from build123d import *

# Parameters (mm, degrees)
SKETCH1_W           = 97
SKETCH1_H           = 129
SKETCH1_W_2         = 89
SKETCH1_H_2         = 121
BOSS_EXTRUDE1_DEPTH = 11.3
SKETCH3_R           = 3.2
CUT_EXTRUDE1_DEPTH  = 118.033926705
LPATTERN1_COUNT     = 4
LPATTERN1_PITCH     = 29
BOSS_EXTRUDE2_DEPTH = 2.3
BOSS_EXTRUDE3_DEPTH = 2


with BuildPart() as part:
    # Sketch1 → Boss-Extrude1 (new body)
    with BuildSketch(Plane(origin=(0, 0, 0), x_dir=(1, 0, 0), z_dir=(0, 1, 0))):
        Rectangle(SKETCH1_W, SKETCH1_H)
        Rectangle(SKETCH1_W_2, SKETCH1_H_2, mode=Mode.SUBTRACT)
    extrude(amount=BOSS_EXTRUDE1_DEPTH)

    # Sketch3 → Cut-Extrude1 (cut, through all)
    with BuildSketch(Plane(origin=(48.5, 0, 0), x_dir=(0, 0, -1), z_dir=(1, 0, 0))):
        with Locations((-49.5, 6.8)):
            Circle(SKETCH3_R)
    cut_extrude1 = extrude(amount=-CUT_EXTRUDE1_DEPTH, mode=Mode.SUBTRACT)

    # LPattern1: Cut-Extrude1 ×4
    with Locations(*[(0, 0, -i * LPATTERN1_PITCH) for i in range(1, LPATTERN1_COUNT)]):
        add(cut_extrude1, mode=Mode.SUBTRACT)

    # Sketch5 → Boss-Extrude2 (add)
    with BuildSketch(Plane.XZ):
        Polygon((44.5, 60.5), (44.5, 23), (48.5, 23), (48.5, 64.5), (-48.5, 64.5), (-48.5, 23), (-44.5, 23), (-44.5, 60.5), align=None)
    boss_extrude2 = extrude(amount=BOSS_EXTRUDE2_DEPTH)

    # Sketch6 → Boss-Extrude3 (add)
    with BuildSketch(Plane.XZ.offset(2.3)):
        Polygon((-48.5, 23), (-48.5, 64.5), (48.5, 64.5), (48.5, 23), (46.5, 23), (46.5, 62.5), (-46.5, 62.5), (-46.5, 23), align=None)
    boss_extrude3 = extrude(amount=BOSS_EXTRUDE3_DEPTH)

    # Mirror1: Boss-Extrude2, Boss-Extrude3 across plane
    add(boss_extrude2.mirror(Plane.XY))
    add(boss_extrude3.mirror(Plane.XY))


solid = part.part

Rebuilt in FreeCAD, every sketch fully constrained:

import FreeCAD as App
import Part
import Sketcher

V = App.Vector
Q = App.Units.Quantity

doc = App.newDocument("Part")
params = doc.addObject("Spreadsheet::Sheet", "Params")
for row, (alias, value) in enumerate([
    ("sketch1_width", "97 mm"),
    ("sketch1_width2", "89 mm"),
    ("sketch1_height", "129 mm"),
    ("sketch1_height2", "121 mm"),
    ("pad1_length", "11.3 mm"),
    ("sketch2_diameter", "6.4 mm"),
    ("linearpattern_pitch", "29 mm"),
    ("sketch3_width", "4 mm"),
    ("sketch3_width2", "97 mm"),
    ("sketch3_height", "37.5 mm"),
    ("sketch3_height2", "41.5 mm"),
    ("pad2_length", "2.3 mm"),
    ("sketch4_width", "2 mm"),
    ("sketch4_width2", "93 mm"),
    ("sketch4_height", "41.5 mm"),
    ("sketch4_height2", "39.5 mm"),
    ("pad3_length", "2 mm"),
], start=1):
    params.set(f"A{row}", alias)
    params.set(f"B{row}", "=" + value)
    params.setAlias(f"B{row}", alias)

body = doc.addObject("PartDesign::Body", "Body")

sketch1 = doc.addObject("Sketcher::SketchObject", "Sketch")
body.addObject(sketch1)
sketch1.AttachmentSupport = (doc.XZ_Plane, [""])
sketch1.MapMode = "FlatFace"
sketch1.addGeometry(Part.LineSegment(V(-48, -64, 0), V(-48, 64, 0)), False)
sketch1.addGeometry(Part.LineSegment(V(-48, 64, 0), V(48, 64, 0)), False)
sketch1.addGeometry(Part.LineSegment(V(48, 64, 0), V(48, -64, 0)), False)
sketch1.addGeometry(Part.LineSegment(V(48, -64, 0), V(-48, -64, 0)), False)
sketch1.addGeometry(Part.LineSegment(V(44, 60, 0), V(-44, 60, 0)), False)
sketch1.addGeometry(Part.LineSegment(V(-44, 60, 0), V(-44, -60, 0)), False)
sketch1.addGeometry(Part.LineSegment(V(-44, -60, 0), V(44, -60, 0)), False)
sketch1.addGeometry(Part.LineSegment(V(44, -60, 0), V(44, 60, 0)), False)
sketch1.addConstraint(Sketcher.Constraint("Coincident", 0, 2, 1, 1))
sketch1.addConstraint(Sketcher.Constraint("Coincident", 1, 2, 2, 1))
sketch1.addConstraint(Sketcher.Constraint("Coincident", 2, 2, 3, 1))
sketch1.addConstraint(Sketcher.Constraint("Coincident", 3, 2, 0, 1))
sketch1.addConstraint(Sketcher.Constraint("Coincident", 4, 2, 5, 1))
sketch1.addConstraint(Sketcher.Constraint("Coincident", 5, 2, 6, 1))
sketch1.addConstraint(Sketcher.Constraint("Coincident", 6, 2, 7, 1))
sketch1.addConstraint(Sketcher.Constraint("Coincident", 7, 2, 4, 1))
sketch1.addConstraint(Sketcher.Constraint("Vertical", 0))
sketch1.addConstraint(Sketcher.Constraint("Horizontal", 1))
sketch1.addConstraint(Sketcher.Constraint("Vertical", 2))
sketch1.addConstraint(Sketcher.Constraint("Horizontal", 3))
sketch1.addConstraint(Sketcher.Constraint("Horizontal", 4))
sketch1.addConstraint(Sketcher.Constraint("Vertical", 5))
sketch1.addConstraint(Sketcher.Constraint("Horizontal", 6))
sketch1.addConstraint(Sketcher.Constraint("Vertical", 7))
sketch1.addConstraint(Sketcher.Constraint("Symmetric", 0, 2, 2, 2, -1, 1))
sketch1.addConstraint(Sketcher.Constraint("Symmetric", 4, 2, 6, 2, -1, 1))
sketch1.addConstraint(Sketcher.Constraint("DistanceX", 1, 1, 1, 2, Q("97 mm")))
sketch1.addConstraint(Sketcher.Constraint("DistanceX", 4, 2, 4, 1, Q("89 mm")))
sketch1.addConstraint(Sketcher.Constraint("DistanceY", 0, 1, 0, 2, Q("129 mm")))
sketch1.addConstraint(Sketcher.Constraint("DistanceY", 5, 2, 5, 1, Q("121 mm")))
sketch1.setExpression("Constraints[18]", "Params.sketch1_width")
sketch1.setExpression("Constraints[19]", "Params.sketch1_width2")
sketch1.setExpression("Constraints[20]", "Params.sketch1_height")
sketch1.setExpression("Constraints[21]", "Params.sketch1_height2")
pad1 = doc.addObject("PartDesign::Pad", "Pad")
body.addObject(pad1)
pad1.Profile = sketch1
pad1.setExpression("Length", "Params.pad1_length")
pad1.Reversed = True

sketch2 = doc.addObject("Sketcher::SketchObject", "Sketch001")
body.addObject(sketch2)
sketch2.AttachmentSupport = (doc.YZ_Plane, [""])
sketch2.MapMode = "FlatFace"
sketch2.AttachmentOffset = App.Placement(V(0, 0, 48.5), App.Rotation())
sketch2.addGeometry(Part.Circle(V(6.8, 49.5, 0), V(0, 0, 1), 3.2), False)
sketch2.addConstraint(Sketcher.Constraint("Diameter", 0, Q("6.4 mm")))
sketch2.addConstraint(Sketcher.Constraint("DistanceX", -1, 1, 0, 3, Q("6.8 mm")))
sketch2.addConstraint(Sketcher.Constraint("DistanceY", -1, 1, 0, 3, Q("49.5 mm")))
sketch2.setExpression("Constraints[0]", "Params.sketch2_diameter")
pocket1 = doc.addObject("PartDesign::Pocket", "Pocket")
body.addObject(pocket1)
pocket1.Profile = sketch2
pocket1.Type = "ThroughAll"
doc.recompute()

linearpattern = doc.addObject("PartDesign::LinearPattern", "LinearPattern")
body.addObject(linearpattern)
linearpattern.Originals = [pocket1]
linearpattern.Direction = (doc.Z_Axis, [""])
linearpattern.Mode = "offset"
linearpattern.setExpression("Offset", "Params.linearpattern_pitch")
linearpattern.Occurrences = 4
linearpattern.Reversed = True
body.Tip = linearpattern

sketch3 = doc.addObject("Sketcher::SketchObject", "Sketch002")
body.addObject(sketch3)
sketch3.AttachmentSupport = (doc.XZ_Plane, [""])
sketch3.MapMode = "FlatFace"
sketch3.addGeometry(Part.LineSegment(V(44.5, 60.5, 0), V(44.5, 23, 0)), False)
sketch3.addGeometry(Part.LineSegment(V(44.5, 23, 0), V(48.5, 23, 0)), False)
sketch3.addGeometry(Part.LineSegment(V(48.5, 23, 0), V(48.5, 64.5, 0)), False)
sketch3.addGeometry(Part.LineSegment(V(48.5, 64.5, 0), V(-48.5, 64.5, 0)), False)
sketch3.addGeometry(Part.LineSegment(V(-48.5, 64.5, 0), V(-48.5, 23, 0)), False)
sketch3.addGeometry(Part.LineSegment(V(-48.5, 23, 0), V(-44.5, 23, 0)), False)
sketch3.addGeometry(Part.LineSegment(V(-44.5, 23, 0), V(-44.5, 60.5, 0)), False)
sketch3.addGeometry(Part.LineSegment(V(-44.5, 60.5, 0), V(44.5, 60.5, 0)), False)
sketch3.addConstraint(Sketcher.Constraint("Coincident", 0, 2, 1, 1))
sketch3.addConstraint(Sketcher.Constraint("Coincident", 1, 2, 2, 1))
sketch3.addConstraint(Sketcher.Constraint("Coincident", 2, 2, 3, 1))
sketch3.addConstraint(Sketcher.Constraint("Coincident", 3, 2, 4, 1))
sketch3.addConstraint(Sketcher.Constraint("Coincident", 4, 2, 5, 1))
sketch3.addConstraint(Sketcher.Constraint("Coincident", 5, 2, 6, 1))
sketch3.addConstraint(Sketcher.Constraint("Coincident", 6, 2, 7, 1))
sketch3.addConstraint(Sketcher.Constraint("Coincident", 7, 2, 0, 1))
sketch3.addConstraint(Sketcher.Constraint("Vertical", 0))
sketch3.addConstraint(Sketcher.Constraint("Horizontal", 1))
sketch3.addConstraint(Sketcher.Constraint("Vertical", 2))
sketch3.addConstraint(Sketcher.Constraint("Horizontal", 3))
sketch3.addConstraint(Sketcher.Constraint("Vertical", 4))
sketch3.addConstraint(Sketcher.Constraint("Horizontal", 5))
sketch3.addConstraint(Sketcher.Constraint("Vertical", 6))
sketch3.addConstraint(Sketcher.Constraint("Horizontal", 7))
sketch3.addConstraint(Sketcher.Constraint("Symmetric", 1, 2, 4, 2, -2))
sketch3.addConstraint(Sketcher.Constraint("Equal", 1, 5))
sketch3.addConstraint(Sketcher.Constraint("DistanceX", 1, 1, 1, 2, Q("4 mm")))
sketch3.addConstraint(Sketcher.Constraint("DistanceX", 3, 2, 3, 1, Q("97 mm")))
sketch3.addConstraint(Sketcher.Constraint("DistanceY", 0, 2, 0, 1, Q("37.5 mm")))
sketch3.addConstraint(Sketcher.Constraint("DistanceY", 2, 1, 2, 2, Q("41.5 mm")))
sketch3.addConstraint(Sketcher.Constraint("DistanceY", -1, 1, 0, 2, Q("23 mm")))
sketch3.setExpression("Constraints[18]", "Params.sketch3_width")
sketch3.setExpression("Constraints[19]", "Params.sketch3_width2")
sketch3.setExpression("Constraints[20]", "Params.sketch3_height")
sketch3.setExpression("Constraints[21]", "Params.sketch3_height2")
pad2 = doc.addObject("PartDesign::Pad", "Pad001")
body.addObject(pad2)
pad2.Profile = sketch3
pad2.setExpression("Length", "Params.pad2_length")

sketch4 = doc.addObject("Sketcher::SketchObject", "Sketch003")
body.addObject(sketch4)
sketch4.AttachmentSupport = (doc.XZ_Plane, [""])
sketch4.MapMode = "FlatFace"
sketch4.AttachmentOffset = App.Placement(V(0, 0, 2.3), App.Rotation())
sketch4.addGeometry(Part.LineSegment(V(-48.5, 64.5, 0), V(-48.5, 23, 0)), False)
sketch4.addGeometry(Part.LineSegment(V(-48.5, 23, 0), V(-46.5, 23, 0)), False)
sketch4.addGeometry(Part.LineSegment(V(-46.5, 23, 0), V(-46.5, 62.5, 0)), False)
sketch4.addGeometry(Part.LineSegment(V(-46.5, 62.5, 0), V(46.5, 62.5, 0)), False)
sketch4.addGeometry(Part.LineSegment(V(46.5, 62.5, 0), V(46.5, 23, 0)), False)
sketch4.addGeometry(Part.LineSegment(V(46.5, 23, 0), V(48.5, 23, 0)), False)
sketch4.addGeometry(Part.LineSegment(V(48.5, 23, 0), V(48.5, 64.5, 0)), False)
sketch4.addGeometry(Part.LineSegment(V(48.5, 64.5, 0), V(-48.5, 64.5, 0)), False)
sketch4.addConstraint(Sketcher.Constraint("Coincident", 0, 2, 1, 1))
sketch4.addConstraint(Sketcher.Constraint("Coincident", 1, 2, 2, 1))
sketch4.addConstraint(Sketcher.Constraint("Coincident", 2, 2, 3, 1))
sketch4.addConstraint(Sketcher.Constraint("Coincident", 3, 2, 4, 1))
sketch4.addConstraint(Sketcher.Constraint("Coincident", 4, 2, 5, 1))
sketch4.addConstraint(Sketcher.Constraint("Coincident", 5, 2, 6, 1))
sketch4.addConstraint(Sketcher.Constraint("Coincident", 6, 2, 7, 1))
sketch4.addConstraint(Sketcher.Constraint("Coincident", 7, 2, 0, 1))
sketch4.addConstraint(Sketcher.Constraint("Vertical", 0))
sketch4.addConstraint(Sketcher.Constraint("Horizontal", 1))
sketch4.addConstraint(Sketcher.Constraint("Vertical", 2))
sketch4.addConstraint(Sketcher.Constraint("Horizontal", 3))
sketch4.addConstraint(Sketcher.Constraint("Vertical", 4))
sketch4.addConstraint(Sketcher.Constraint("Horizontal", 5))
sketch4.addConstraint(Sketcher.Constraint("Vertical", 6))
sketch4.addConstraint(Sketcher.Constraint("Horizontal", 7))
sketch4.addConstraint(Sketcher.Constraint("Symmetric", 1, 2, 4, 2, -2))
sketch4.addConstraint(Sketcher.Constraint("Equal", 1, 5))
sketch4.addConstraint(Sketcher.Constraint("DistanceX", 1, 1, 1, 2, Q("2 mm")))
sketch4.addConstraint(Sketcher.Constraint("DistanceX", 3, 1, 3, 2, Q("93 mm")))
sketch4.addConstraint(Sketcher.Constraint("DistanceY", 0, 2, 0, 1, Q("41.5 mm")))
sketch4.addConstraint(Sketcher.Constraint("DistanceY", 2, 1, 2, 2, Q("39.5 mm")))
sketch4.addConstraint(Sketcher.Constraint("DistanceY", -1, 1, 0, 2, Q("23 mm")))
sketch4.setExpression("Constraints[18]", "Params.sketch4_width")
sketch4.setExpression("Constraints[19]", "Params.sketch4_width2")
sketch4.setExpression("Constraints[20]", "Params.sketch4_height")
sketch4.setExpression("Constraints[21]", "Params.sketch4_height2")
pad3 = doc.addObject("PartDesign::Pad", "Pad002")
body.addObject(pad3)
pad3.Profile = sketch4
pad3.setExpression("Length", "Params.pad3_length")
doc.recompute()

mirrored = doc.addObject("PartDesign::Mirrored", "Mirrored")
body.addObject(mirrored)
mirrored.Originals = [pad2, pad3]
mirrored.MirrorPlane = (doc.XY_Plane, [""])
body.Tip = mirrored

doc.recompute()
